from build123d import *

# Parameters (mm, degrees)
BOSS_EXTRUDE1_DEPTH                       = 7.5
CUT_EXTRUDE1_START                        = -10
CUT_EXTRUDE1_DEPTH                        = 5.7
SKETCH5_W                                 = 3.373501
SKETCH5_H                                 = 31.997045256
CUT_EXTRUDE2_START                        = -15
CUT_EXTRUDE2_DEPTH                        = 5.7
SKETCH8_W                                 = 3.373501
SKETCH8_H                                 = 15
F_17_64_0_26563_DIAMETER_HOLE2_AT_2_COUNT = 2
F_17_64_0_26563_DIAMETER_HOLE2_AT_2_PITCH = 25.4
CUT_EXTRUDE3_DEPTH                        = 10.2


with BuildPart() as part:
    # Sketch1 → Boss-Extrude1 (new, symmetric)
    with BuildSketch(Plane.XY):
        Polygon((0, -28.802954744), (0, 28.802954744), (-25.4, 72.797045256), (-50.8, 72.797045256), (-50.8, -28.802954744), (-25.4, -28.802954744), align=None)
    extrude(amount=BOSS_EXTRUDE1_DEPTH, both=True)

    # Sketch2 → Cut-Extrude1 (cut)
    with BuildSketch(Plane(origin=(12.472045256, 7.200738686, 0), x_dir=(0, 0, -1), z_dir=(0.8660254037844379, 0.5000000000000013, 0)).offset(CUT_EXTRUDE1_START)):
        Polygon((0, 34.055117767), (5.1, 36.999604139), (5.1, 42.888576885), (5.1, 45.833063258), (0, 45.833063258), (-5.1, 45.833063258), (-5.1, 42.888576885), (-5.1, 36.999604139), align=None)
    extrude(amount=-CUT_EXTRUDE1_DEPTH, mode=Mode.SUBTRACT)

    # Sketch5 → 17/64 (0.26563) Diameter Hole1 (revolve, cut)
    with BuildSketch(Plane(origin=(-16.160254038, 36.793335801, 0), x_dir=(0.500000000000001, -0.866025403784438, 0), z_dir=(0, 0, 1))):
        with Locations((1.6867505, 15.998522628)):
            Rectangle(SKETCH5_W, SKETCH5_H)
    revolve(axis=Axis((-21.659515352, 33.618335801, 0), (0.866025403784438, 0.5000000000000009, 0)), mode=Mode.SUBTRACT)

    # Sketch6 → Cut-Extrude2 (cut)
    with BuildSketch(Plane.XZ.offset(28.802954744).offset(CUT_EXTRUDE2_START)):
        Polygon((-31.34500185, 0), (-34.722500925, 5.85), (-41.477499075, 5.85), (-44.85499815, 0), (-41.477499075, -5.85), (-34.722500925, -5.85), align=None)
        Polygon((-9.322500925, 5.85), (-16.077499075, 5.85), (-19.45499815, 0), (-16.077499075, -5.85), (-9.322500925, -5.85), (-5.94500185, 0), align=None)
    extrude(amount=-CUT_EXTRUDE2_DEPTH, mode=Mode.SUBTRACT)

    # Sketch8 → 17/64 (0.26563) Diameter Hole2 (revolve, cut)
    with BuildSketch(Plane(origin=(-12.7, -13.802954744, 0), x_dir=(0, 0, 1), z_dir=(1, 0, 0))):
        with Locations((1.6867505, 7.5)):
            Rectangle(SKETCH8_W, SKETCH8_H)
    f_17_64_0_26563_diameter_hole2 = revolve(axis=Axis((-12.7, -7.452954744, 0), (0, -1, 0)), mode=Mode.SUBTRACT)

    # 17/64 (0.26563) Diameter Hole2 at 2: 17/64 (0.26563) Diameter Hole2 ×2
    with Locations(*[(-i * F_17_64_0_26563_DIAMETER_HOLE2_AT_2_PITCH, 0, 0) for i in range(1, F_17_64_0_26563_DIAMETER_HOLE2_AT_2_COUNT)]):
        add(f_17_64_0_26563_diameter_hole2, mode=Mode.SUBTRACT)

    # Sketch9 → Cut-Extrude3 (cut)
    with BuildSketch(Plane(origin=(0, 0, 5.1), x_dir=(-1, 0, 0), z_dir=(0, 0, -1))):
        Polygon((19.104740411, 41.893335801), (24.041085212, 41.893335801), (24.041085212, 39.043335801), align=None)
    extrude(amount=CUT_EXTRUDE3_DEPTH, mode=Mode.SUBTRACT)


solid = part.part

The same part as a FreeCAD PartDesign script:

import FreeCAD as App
import Part
import Sketcher

V = App.Vector
Q = App.Units.Quantity


def add_polygon(sketch, points):
    """Adds a closed chain of lines whose ends are joined by coincident constraints."""
    first, n = sketch.GeometryCount, len(points)
    for a, b in zip(points, points[1:] + points[:1]):
        sketch.addGeometry(Part.LineSegment(App.Vector(*a, 0), App.Vector(*b, 0)), False)
    for i in range(n):
        sketch.addConstraint(Sketcher.Constraint("Coincident", first + i, 2, first + (i + 1) % n, 1))

doc = App.newDocument("Part")
body = doc.addObject("PartDesign::Body", "Body")

# Sketch on XY plane
sketch1 = body.newObject("Sketcher::SketchObject", "Sketch")
sketch1.AttachmentSupport = (doc.getObject("XY_Plane"), [""])
sketch1.MapMode = "FlatFace"
add_polygon(sketch1, [(0, -29), (0, 29), (-25, 73), (-51, 73), (-51, -29)])  # lines 0-4
sketch1.addConstraint(Sketcher.Constraint("Vertical", 0))
sketch1.addConstraint(Sketcher.Constraint("Horizontal", 2))
sketch1.addConstraint(Sketcher.Constraint("Vertical", 3))
sketch1.addConstraint(Sketcher.Constraint("Horizontal", 4))
sketch1.addConstraint(Sketcher.Constraint("Symmetric", 0, 2, 4, 2, -1, 1))
sketch1.addConstraint(Sketcher.Constraint("Angle", 1, Q("120 deg")))
sketch1.addConstraint(Sketcher.Constraint("DistanceX", 2, 2, 2, 1, Q("25.4 mm")))
sketch1.addConstraint(Sketcher.Constraint("DistanceX", 4, 1, 4, 2, Q("50.8 mm")))
sketch1.addConstraint(Sketcher.Constraint("DistanceY", 3, 2, 3, 1, Q("101.6 mm")))
pad1 = body.newObject("PartDesign::Pad", "Pad")
pad1.Profile = sketch1
pad1.Length = 15
pad1.Midplane = True

# Sketch on an angled plane
sketch2 = body.newObject("Sketcher::SketchObject", "Sketch001")
sketch2.Placement = App.Placement(V(3.811791, 2.200739, 0), App.Rotation(V(0, 0, -1), V(-0.5, 0.866025404, 0), V(0.866025404, 0.5, 0), "ZXY"))
add_polygon(sketch2, [(0, 34), (5, 37), (5, 46), (-5, 46), (-5, 37)])  # lines 0-4
sketch2.addConstraint(Sketcher.Constraint("Vertical", 1))
sketch2.addConstraint(Sketcher.Constraint("Horizontal", 2))
sketch2.addConstraint(Sketcher.Constraint("Vertical", 3))
sketch2.addConstraint(Sketcher.Constraint("Symmetric", 0, 2, 3, 2, -2))
sketch2.addConstraint(Sketcher.Constraint("PointOnObject", 4, 2, -2))
sketch2.addConstraint(Sketcher.Constraint("Angle", 0, Q("30 deg")))
sketch2.addConstraint(Sketcher.Constraint("DistanceX", 2, 2, 2, 1, Q("10.2 mm")))
sketch2.addConstraint(Sketcher.Constraint("DistanceY", 1, 1, 1, 2, Q("8.833459 mm")))
sketch2.addConstraint(Sketcher.Constraint("DistanceY", -1, 1, 0, 2, Q("36.999604 mm")))
pocket1 = body.newObject("PartDesign::Pocket", "Pocket")
pocket1.Profile = sketch2
pocket1.Length = 5.7

# Sketch on XY plane
sketch3 = body.newObject("Sketcher::SketchObject", "Sketch002")
sketch3.AttachmentSupport = (doc.getObject("XY_Plane"), [""])
sketch3.MapMode = "FlatFace"
add_polygon(sketch3, [(11.6, 52.8), (-16.2, 36.8), (-14.5, 33.9), (13.2, 49.9)])  # lines 0-3
sketch3.addGeometry(Part.LineSegment(V(-16.2, 36.8, 0), V(11.6, 52.8, 0)), True)  # axis
sketch3.addConstraint(Sketcher.Constraint("Coincident", 4, 1, 0, 2))
sketch3.addConstraint(Sketcher.Constraint("Coincident", 4, 2, 3, 2))
sketch3.addConstraint(Sketcher.Constraint("Perpendicular", 0, 1))
sketch3.addConstraint(Sketcher.Constraint("Perpendicular", 1, 2))
sketch3.addConstraint(Sketcher.Constraint("Perpendicular", 2, 3))
sketch3.addConstraint(Sketcher.Constraint("Angle", 0, Q("-150 deg")))
sketch3.addConstraint(Sketcher.Constraint("DistanceX", -1, 1, 3, 2, Q("11.55 mm")))
sketch3.addConstraint(Sketcher.Constraint("Distance", 1, Q("3.373501 mm")))
sketch3.addConstraint(Sketcher.Constraint("DistanceY", -1, 1, 1, 2, Q("33.871798 mm")))
sketch3.addConstraint(Sketcher.Constraint("DistanceY", -1, 1, 2, 2, Q("49.870321 mm")))
groove = body.newObject("PartDesign::Groove", "Groove")
groove.Profile = sketch3
groove.ReferenceAxis = (sketch3, ["Axis0"])
groove.Angle = 360

# Sketch on XZ plane
sketch4 = body.newObject("Sketcher::SketchObject", "Sketch003")
sketch4.AttachmentSupport = (doc.getObject("XZ_Plane"), [""])
sketch4.MapMode = "FlatFace"
sketch4.AttachmentOffset = App.Placement(V(0, 0, 13.802955), App.Rotation())
add_polygon(sketch4, [(-31, 0), (-35, 6), (-41, 6), (-45, 0), (-41, -6), (-35, -6)])  # lines 0-5
add_polygon(sketch4, [(-9, 6), (-16, 6), (-19, 0), (-16, -6), (-9, -6), (-6, 0)])  # lines 6-11
sketch4.addConstraint(Sketcher.Constraint("Horizontal", 1))
sketch4.addConstraint(Sketcher.Constraint("Horizontal", 4))
sketch4.addConstraint(Sketcher.Constraint("Horizontal", 6))
sketch4.addConstraint(Sketcher.Constraint("Horizontal", 9))
sketch4.addConstraint(Sketcher.Constraint("Symmetric", 1, 2, 3, 2, -1))
sketch4.addConstraint(Sketcher.Constraint("Symmetric", 6, 2, 8, 2, -1))
sketch4.addConstraint(Sketcher.Constraint("PointOnObject", 2, 2, -1))
sketch4.addConstraint(Sketcher.Constraint("PointOnObject", 5, 2, -1))
sketch4.addConstraint(Sketcher.Constraint("PointOnObject", 7, 2, -1))
sketch4.addConstraint(Sketcher.Constraint("PointOnObject", 10, 2, -1))
sketch4.addConstraint(Sketcher.Constraint("Parallel", 0, 3))
sketch4.addConstraint(Sketcher.Constraint("Parallel", 2, 5))
sketch4.addConstraint(Sketcher.Constraint("Parallel", 5, 7))
sketch4.addConstraint(Sketcher.Constraint("Parallel", 7, 10))
sketch4.addConstraint(Sketcher.Constraint("Parallel", 8, 11))
sketch4.addConstraint(Sketcher.Constraint("Horizontal", 1, 2, 6, 2))
sketch4.addConstraint(Sketcher.Constraint("Equal", 4, 6))
sketch4.addConstraint(Sketcher.Constraint("Angle", 0, Q("120 deg")))
sketch4.addConstraint(Sketcher.Constraint("DistanceY", 3, 2, 1, 2, Q("11.7 mm")))
sketch4.addConstraint(Sketcher.Constraint("DistanceX", 1, 2, 6, 2, Q("25.4 mm")))
sketch4.addConstraint(Sketcher.Constraint("DistanceX", 1, 2, 1, 1, Q("6.754998 mm")))
sketch4.addConstraint(Sketcher.Constraint("DistanceX", 2, 2, -1, 1, Q("44.854998 mm")))
pocket2 = body.newObject("PartDesign::Pocket", "Pocket001")
pocket2.Profile = sketch4
pocket2.Length = 5.7

# Sketch on YZ plane
sketch5 = body.newObject("Sketcher::SketchObject", "Sketch004")
sketch5.AttachmentSupport = (doc.getObject("YZ_Plane"), [""])
sketch5.MapMode = "FlatFace"
sketch5.AttachmentOffset = App.Placement(V(0, 0, -12.7), App.Rotation())
add_polygon(sketch5, [(-28.8, 0), (-13.8, 0), (-13.8, 3.4), (-28.8, 3.4)])  # lines 0-3
sketch5.addConstraint(Sketcher.Constraint("Horizontal", 0))
sketch5.addConstraint(Sketcher.Constraint("Vertical", 1))
sketch5.addConstraint(Sketcher.Constraint("Horizontal", 2))
sketch5.addConstraint(Sketcher.Constraint("Vertical", 3))
sketch5.addConstraint(Sketcher.Constraint("PointOnObject", 0, 2, -1))
sketch5.addConstraint(Sketcher.Constraint("DistanceX", 0, 1, 0, 2, Q("15 mm")))
sketch5.addConstraint(Sketcher.Constraint("DistanceY", 1, 1, 1, 2, Q("3.373501 mm")))
sketch5.addConstraint(Sketcher.Constraint("DistanceX", 0, 2, -1, 1, Q("13.802955 mm")))
groove2 = body.newObject("PartDesign::Groove", "Groove001")
groove2.Profile = sketch5
groove2.ReferenceAxis = (sketch5, ["H_Axis"])
groove2.Angle = 360
doc.recompute()

linearpattern = body.newObject("PartDesign::LinearPattern", "LinearPattern")
linearpattern.Originals = [groove2]
linearpattern.Direction = (doc.getObject("X_Axis"), [""])
linearpattern.Mode = "offset"
linearpattern.Offset = 25.4
linearpattern.Occurrences = 2
linearpattern.Reversed = True
body.Tip = linearpattern

# Sketch on XY plane
sketch6 = body.newObject("Sketcher::SketchObject", "Sketch005")
sketch6.AttachmentSupport = (doc.getObject("XY_Plane"), [""])
sketch6.MapMode = "FlatFace"
sketch6.AttachmentOffset = App.Placement(V(0, 0, 5.1), App.Rotation())
add_polygon(sketch6, [(-24, 41.9), (-19.1, 41.9), (-24, 39)])  # lines 0-2
sketch6.addConstraint(Sketcher.Constraint("Horizontal", 0))
sketch6.addConstraint(Sketcher.Constraint("Vertical", 2))
sketch6.addConstraint(Sketcher.Constraint("Angle", 1, Q("-150 deg")))
sketch6.addConstraint(Sketcher.Constraint("Distance", 1, Q("5.7 mm")))
sketch6.addConstraint(Sketcher.Constraint("DistanceX", 0, 2, -1, 1, Q("19.10474 mm")))
sketch6.addConstraint(Sketcher.Constraint("DistanceY", -1, 1, 0, 2, Q("41.893336 mm")))
pocket3 = body.newObject("PartDesign::Pocket", "Pocket002")
pocket3.Profile = sketch6
pocket3.Length = 10.2

doc.recompute()
